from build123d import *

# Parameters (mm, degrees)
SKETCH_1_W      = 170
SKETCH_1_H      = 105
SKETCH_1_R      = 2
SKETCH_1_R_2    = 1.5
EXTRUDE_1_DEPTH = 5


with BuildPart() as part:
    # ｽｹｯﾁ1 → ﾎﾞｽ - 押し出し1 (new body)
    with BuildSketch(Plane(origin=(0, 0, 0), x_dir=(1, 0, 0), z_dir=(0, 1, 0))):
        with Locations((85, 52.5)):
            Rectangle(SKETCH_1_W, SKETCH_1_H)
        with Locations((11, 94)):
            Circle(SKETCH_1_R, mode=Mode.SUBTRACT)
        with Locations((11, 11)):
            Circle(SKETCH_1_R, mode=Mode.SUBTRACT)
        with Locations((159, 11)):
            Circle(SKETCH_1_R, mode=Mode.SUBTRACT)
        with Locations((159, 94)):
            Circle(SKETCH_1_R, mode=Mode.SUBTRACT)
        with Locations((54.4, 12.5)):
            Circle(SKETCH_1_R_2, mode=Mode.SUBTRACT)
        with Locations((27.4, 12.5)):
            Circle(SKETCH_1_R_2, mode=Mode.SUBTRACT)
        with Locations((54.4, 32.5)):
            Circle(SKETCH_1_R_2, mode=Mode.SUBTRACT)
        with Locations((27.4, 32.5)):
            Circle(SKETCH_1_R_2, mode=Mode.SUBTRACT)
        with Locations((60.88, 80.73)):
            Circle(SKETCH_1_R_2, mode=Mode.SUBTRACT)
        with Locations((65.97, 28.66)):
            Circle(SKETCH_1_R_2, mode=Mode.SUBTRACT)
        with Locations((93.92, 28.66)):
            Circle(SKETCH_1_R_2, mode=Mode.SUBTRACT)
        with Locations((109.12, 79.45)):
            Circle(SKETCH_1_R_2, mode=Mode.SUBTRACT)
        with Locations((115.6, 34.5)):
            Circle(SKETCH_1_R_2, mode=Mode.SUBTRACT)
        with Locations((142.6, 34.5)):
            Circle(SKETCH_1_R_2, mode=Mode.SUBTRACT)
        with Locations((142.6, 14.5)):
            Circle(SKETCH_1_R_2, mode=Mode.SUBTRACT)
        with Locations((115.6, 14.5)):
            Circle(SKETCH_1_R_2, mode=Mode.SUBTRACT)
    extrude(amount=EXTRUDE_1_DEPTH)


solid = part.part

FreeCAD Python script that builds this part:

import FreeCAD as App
import Part
import Sketcher
Q = App.Units.Quantity

doc = App.newDocument("Part")
body = doc.addObject("PartDesign::Body", "Body")

# Sketch on XZ plane
sketch1 = body.newObject("Sketcher::SketchObject", "Sketch")
sketch1.AttachmentSupport = (doc.getObject("XZ_Plane"), [""])
sketch1.MapMode = "FlatFace"
sketch1.addGeometry([
    Part.LineSegment(App.Vector(0, -105, 0), App.Vector(0, 0, 0)),  # 0
    Part.LineSegment(App.Vector(0, 0, 0), App.Vector(170, 0, 0)),  # 1
    Part.LineSegment(App.Vector(170, 0, 0), App.Vector(170, -105, 0)),  # 2
    Part.LineSegment(App.Vector(170, -105, 0), App.Vector(0, -105, 0)),  # 3
    Part.Circle(App.Vector(11, -11, 0), App.Vector(0, 0, 1), 2),  # 4
    Part.Circle(App.Vector(27.4, -12.5, 0), App.Vector(0, 0, 1), 1.5),  # 5
    Part.Circle(App.Vector(54.4, -12.5, 0), App.Vector(0, 0, 1), 1.5),  # 6
    Part.Circle(App.Vector(66, -28.7, 0), App.Vector(0, 0, 1), 1.5),  # 7
    Part.Circle(App.Vector(27.4, -32.5, 0), App.Vector(0, 0, 1), 1.5),  # 8
    Part.Circle(App.Vector(54.4, -32.5, 0), App.Vector(0, 0, 1), 1.5),  # 9
    Part.Circle(App.Vector(115.6, -14.5, 0), App.Vector(0, 0, 1), 1.5),  # 10
    Part.Circle(App.Vector(93.9, -28.7, 0), App.Vector(0, 0, 1), 1.5),  # 11
    Part.Circle(App.Vector(159, -11, 0), App.Vector(0, 0, 1), 2),  # 12
    Part.Circle(App.Vector(142.6, -14.5, 0), App.Vector(0, 0, 1), 1.5),  # 13
    Part.Circle(App.Vector(115.6, -34.5, 0), App.Vector(0, 0, 1), 1.5),  # 14
    Part.Circle(App.Vector(142.6, -34.5, 0), App.Vector(0, 0, 1), 1.5),  # 15
    Part.Circle(App.Vector(11, -94, 0), App.Vector(0, 0, 1), 2),  # 16
    Part.Circle(App.Vector(60.9, -80.7, 0), App.Vector(0, 0, 1), 1.5),  # 17
    Part.Circle(App.Vector(109.1, -79.5, 0), App.Vector(0, 0, 1), 1.5),  # 18
    Part.Circle(App.Vector(159, -94, 0), App.Vector(0, 0, 1), 2),  # 19
], False)
sketch1.addConstraint([
    Sketcher.Constraint("Coincident", 0, 2, 1, 1),
    Sketcher.Constraint("Coincident", 1, 2, 2, 1),
    Sketcher.Constraint("Coincident", 2, 2, 3, 1),
    Sketcher.Constraint("Coincident", 3, 2, 0, 1),
    Sketcher.Constraint("Vertical", 0),
    Sketcher.Constraint("Horizontal", 1),
    Sketcher.Constraint("Vertical", 2),
    Sketcher.Constraint("Horizontal", 3),
    Sketcher.Constraint("Coincident", 0, 2, -1, 1),
    Sketcher.Constraint("Equal", 5, 6),
    Sketcher.Constraint("Equal", 6, 7),
    Sketcher.Constraint("Equal", 7, 8),
    Sketcher.Constraint("Equal", 8, 9),
    Sketcher.Constraint("Equal", 9, 10),
    Sketcher.Constraint("Equal", 10, 11),
    Sketcher.Constraint("Equal", 4, 12),
    Sketcher.Constraint("Equal", 11, 13),
    Sketcher.Constraint("Equal", 13, 14),
    Sketcher.Constraint("Equal", 14, 15),
    Sketcher.Constraint("Equal", 12, 16),
    Sketcher.Constraint("Equal", 15, 17),
    Sketcher.Constraint("Equal", 17, 18),
    Sketcher.Constraint("Equal", 16, 19),
    Sketcher.Constraint("Horizontal", 5, 3, 6, 3),
    Sketcher.Constraint("Horizontal", 8, 3, 9, 3),
    Sketcher.Constraint("Horizontal", 7, 3, 11, 3),
    Sketcher.Constraint("Horizontal", 4, 3, 12, 3),
    Sketcher.Constraint("Horizontal", 10, 3, 13, 3),
    Sketcher.Constraint("Horizontal", 14, 3, 15, 3),
    Sketcher.Constraint("Horizontal", 16, 3, 19, 3),
    Sketcher.Constraint("Vertical", 5, 3, 8, 3),
    Sketcher.Constraint("Vertical", 6, 3, 9, 3),
    Sketcher.Constraint("Vertical", 10, 3, 14, 3),
    Sketcher.Constraint("Vertical", 13, 3, 15, 3),
    Sketcher.Constraint("Vertical", 4, 3, 16, 3),
    Sketcher.Constraint("Vertical", 12, 3, 19, 3),
    Sketcher.Constraint("Diameter", 4, Q("4 mm")),
    Sketcher.Constraint("Diameter", 5, Q("3 mm")),
    Sketcher.Constraint("DistanceX", 1, 1, 1, 2, Q("170 mm")),
    Sketcher.Constraint("DistanceY", 0, 1, 0, 2, Q("105 mm")),
    Sketcher.Constraint("DistanceX", -1, 1, 4, 3, Q("11 mm")),
    Sketcher.Constraint("DistanceY", 4, 3, -1, 1, Q("11 mm")),
    Sketcher.Constraint("DistanceX", -1, 1, 12, 3, Q("159 mm")),
    Sketcher.Constraint("DistanceY", 16, 3, -1, 1, Q("94 mm")),
    Sketcher.Constraint("DistanceX", 5, 3, 6, 3, Q("27 mm")),
    Sketcher.Constraint("DistanceY", 8, 3, 5, 3, Q("20 mm")),
    Sketcher.Constraint("DistanceY", 10, 3, 6, 3, Q("2 mm")),
    Sketcher.Constraint("DistanceX", 10, 3, 13, 3, Q("27 mm")),
    Sketcher.Constraint("DistanceY", 14, 3, 10, 3, Q("20 mm")),
    Sketcher.Constraint("DistanceX", -1, 1, 5, 3, Q("27.4 mm")),
    Sketcher.Constraint("DistanceY", 5, 3, -1, 1, Q("12.5 mm")),
    Sketcher.Constraint("DistanceX", -1, 1, 10, 3, Q("115.6 mm")),
    Sketcher.Constraint("DistanceX", 11, 3, 18, 3, Q("15.2 mm")),
    Sketcher.Constraint("DistanceX", -1, 1, 7, 3, Q("65.97 mm")),
    Sketcher.Constraint("DistanceY", 7, 3, -1, 1, Q("28.66 mm")),
    Sketcher.Constraint("DistanceX", -1, 1, 11, 3, Q("93.92 mm")),
    Sketcher.Constraint("DistanceX", -1, 1, 17, 3, Q("60.88 mm")),
    Sketcher.Constraint("DistanceY", 17, 3, -1, 1, Q("80.73 mm")),
    Sketcher.Constraint("DistanceY", 18, 3, -1, 1, Q("79.45 mm")),
])
pad1 = body.newObject("PartDesign::Pad", "Pad")
pad1.Profile = sketch1
pad1.Length = 5
pad1.Reversed = True

doc.recompute()
